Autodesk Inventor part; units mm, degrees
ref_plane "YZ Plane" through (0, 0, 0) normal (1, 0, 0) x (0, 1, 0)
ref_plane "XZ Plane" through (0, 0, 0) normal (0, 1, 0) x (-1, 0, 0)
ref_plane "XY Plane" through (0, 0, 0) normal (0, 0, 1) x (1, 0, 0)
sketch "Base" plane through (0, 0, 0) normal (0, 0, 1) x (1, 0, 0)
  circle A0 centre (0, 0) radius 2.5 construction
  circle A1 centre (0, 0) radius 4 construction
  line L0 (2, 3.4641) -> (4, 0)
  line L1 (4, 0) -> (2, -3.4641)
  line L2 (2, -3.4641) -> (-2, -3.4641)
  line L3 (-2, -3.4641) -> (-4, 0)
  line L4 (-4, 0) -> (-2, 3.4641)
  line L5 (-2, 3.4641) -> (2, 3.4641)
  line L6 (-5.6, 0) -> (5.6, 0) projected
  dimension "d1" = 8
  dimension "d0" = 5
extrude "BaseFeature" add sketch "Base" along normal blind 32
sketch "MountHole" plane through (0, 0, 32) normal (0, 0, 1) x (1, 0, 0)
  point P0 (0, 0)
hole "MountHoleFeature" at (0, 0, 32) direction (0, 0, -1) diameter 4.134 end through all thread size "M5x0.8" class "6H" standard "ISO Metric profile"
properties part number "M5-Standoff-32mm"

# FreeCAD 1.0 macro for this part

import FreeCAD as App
import Part
import Sketcher

V = App.Vector
Q = App.Units.Quantity

doc = App.newDocument("Part")
body = doc.addObject("PartDesign::Body", "Body")

sketch1 = body.newObject("Sketcher::SketchObject", "Sketch")
sketch1.AttachmentSupport = (doc.getObject("XY_Plane"), [""])
sketch1.MapMode = "FlatFace"
sketch1.addGeometry([
    Part.LineSegment(V(4, 0, 0), V(2, 3.5, 0)),
    Part.LineSegment(V(2, 3.5, 0), V(-2, 3.5, 0)),
    Part.LineSegment(V(-2, 3.5, 0), V(-4, 0, 0)),
    Part.LineSegment(V(-4, 0, 0), V(-2, -3.5, 0)),
    Part.LineSegment(V(-2, -3.5, 0), V(2, -3.5, 0)),
    Part.LineSegment(V(2, -3.5, 0), V(4, 0, 0)),
], False)
sketch1.addConstraint([
    Sketcher.Constraint("Coincident", 0, 2, 1, 1),
    Sketcher.Constraint("Coincident", 1, 2, 2, 1),
    Sketcher.Constraint("Coincident", 2, 2, 3, 1),
    Sketcher.Constraint("Coincident", 3, 2, 4, 1),
    Sketcher.Constraint("Coincident", 4, 2, 5, 1),
    Sketcher.Constraint("Coincident", 5, 2, 0, 1),
    Sketcher.Constraint("Horizontal", 1),
    Sketcher.Constraint("Horizontal", 4),
    Sketcher.Constraint("Symmetric", 0, 2, 3, 2, -1, 1),
    Sketcher.Constraint("Symmetric", 2, 2, 5, 2, -1, 1),
    Sketcher.Constraint("PointOnObject", 2, 2, -1),
    Sketcher.Constraint("Parallel", 2, 5),
    Sketcher.Constraint("Vertical", 1, 2, 3, 2),
    Sketcher.Constraint("DistanceX", 2, 2, 5, 2, 8.0),
    Sketcher.Constraint("DistanceX", 1, 2, 1, 1, 4.0),
    Sketcher.Constraint("Angle", 0, Q("120 deg")),
])
pad1 = body.newObject("PartDesign::Pad", "Pad")
pad1.Profile = sketch1
pad1.Length = 32

sketch2 = body.newObject("Sketcher::SketchObject", "Sketch001")
sketch2.AttachmentSupport = (doc.getObject("XY_Plane"), [""])
sketch2.MapMode = "FlatFace"
sketch2.AttachmentOffset = App.Placement(V(0, 0, 32), App.Rotation())
sketch2.addGeometry(Part.Circle(V(0, 0, 0), V(0, 0, 1), 2.1), False)
sketch2.addConstraint([
    Sketcher.Constraint("Coincident", 0, 3, -1, 1),
    Sketcher.Constraint("Diameter", 0, 4.134),
])
doc.recompute()
hole = body.newObject("PartDesign::Hole", "Hole")
hole.Profile = sketch2
hole.ThreadType = "None"
hole.Diameter = 4.134
hole.DepthType = "ThroughAll"

doc.recompute()
